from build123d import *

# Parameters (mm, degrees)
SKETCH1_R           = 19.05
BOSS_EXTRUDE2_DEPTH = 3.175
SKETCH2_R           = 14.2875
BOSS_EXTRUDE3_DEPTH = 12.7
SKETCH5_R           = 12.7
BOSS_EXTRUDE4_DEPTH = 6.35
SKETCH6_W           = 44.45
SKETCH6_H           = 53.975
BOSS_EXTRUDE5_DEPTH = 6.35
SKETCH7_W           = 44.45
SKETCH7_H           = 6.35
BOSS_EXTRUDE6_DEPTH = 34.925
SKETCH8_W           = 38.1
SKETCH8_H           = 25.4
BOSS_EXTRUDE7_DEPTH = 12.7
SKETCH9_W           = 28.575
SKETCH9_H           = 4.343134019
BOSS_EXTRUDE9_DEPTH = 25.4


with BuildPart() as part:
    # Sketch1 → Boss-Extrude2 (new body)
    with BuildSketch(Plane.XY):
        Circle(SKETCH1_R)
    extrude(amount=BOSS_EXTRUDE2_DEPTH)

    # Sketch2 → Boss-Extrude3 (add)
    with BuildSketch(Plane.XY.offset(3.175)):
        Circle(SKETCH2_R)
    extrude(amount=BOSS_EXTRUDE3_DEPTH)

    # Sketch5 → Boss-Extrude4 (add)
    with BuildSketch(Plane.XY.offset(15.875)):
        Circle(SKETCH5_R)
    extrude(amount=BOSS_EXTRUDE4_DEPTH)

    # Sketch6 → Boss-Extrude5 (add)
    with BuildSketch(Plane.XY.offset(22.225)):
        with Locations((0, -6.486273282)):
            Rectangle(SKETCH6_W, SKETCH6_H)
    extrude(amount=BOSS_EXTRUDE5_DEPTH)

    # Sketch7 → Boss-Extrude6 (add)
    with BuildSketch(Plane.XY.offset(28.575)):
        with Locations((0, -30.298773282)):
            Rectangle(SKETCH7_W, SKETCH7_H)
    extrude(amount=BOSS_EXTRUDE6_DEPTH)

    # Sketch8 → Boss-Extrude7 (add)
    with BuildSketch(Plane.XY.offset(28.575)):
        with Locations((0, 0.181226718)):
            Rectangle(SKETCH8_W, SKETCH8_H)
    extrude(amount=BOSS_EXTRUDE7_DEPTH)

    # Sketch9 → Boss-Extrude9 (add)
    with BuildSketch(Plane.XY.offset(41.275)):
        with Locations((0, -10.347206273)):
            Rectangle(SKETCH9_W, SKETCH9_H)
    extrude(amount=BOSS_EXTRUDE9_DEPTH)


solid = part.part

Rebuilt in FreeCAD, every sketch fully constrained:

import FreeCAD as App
import Part
import Sketcher
from FreeCAD import Vector
Q = App.Units.Quantity

doc = App.newDocument("Part")
params = doc.addObject("Spreadsheet::Sheet", "Params")
for row, (alias, value) in enumerate([
    ("sketch1_diameter", "1.5 in"),
    ("pad1_length", "0.125 in"),
    ("sketch2_diameter", "1.125 in"),
    ("pad2_length", "0.5 in"),
    ("sketch3_diameter", "1 in"),
    ("pad3_length", "0.25 in"),
    ("sketch4_width", "1.75 in"),
    ("sketch4_height", "2.125 in"),
    ("pad4_length", "0.25 in"),
    ("sketch5_width", "1.75 in"),
    ("sketch5_height", "0.25 in"),
    ("pad5_length", "1.375 in"),
    ("sketch6_height", "1 in"),
    ("sketch6_width", "1.5 in"),
    ("pad6_length", "0.5 in"),
    ("sketch7_width", "1.125 in"),
    ("pad7_length", "1 in"),
], start=1):
    params.set(f"A{row}", alias)
    params.set(f"B{row}", "=" + value)
    params.setAlias(f"B{row}", alias)

body = doc.addObject("PartDesign::Body", "Body")

sketch1 = body.newObject("Sketcher::SketchObject", "Sketch")
sketch1.AttachmentSupport = (doc.getObject("XY_Plane"), [""])
sketch1.MapMode = "FlatFace"
sketch1.addGeometry(Part.Circle(Vector(0, 0, 0), Vector(0, 0, 1), 19), False)
sketch1.addConstraint([
    Sketcher.Constraint("Coincident", 0, 3, -1, 1),
    Sketcher.Constraint("Diameter", 0, Q("1.5 in")),
])
sketch1.setExpression("Constraints[1]", "Params.sketch1_diameter")
pad1 = body.newObject("PartDesign::Pad", "Pad")
pad1.Profile = sketch1
pad1.setExpression("Length", "Params.pad1_length")

sketch2 = body.newObject("Sketcher::SketchObject", "Sketch001")
sketch2.AttachmentSupport = (doc.getObject("XY_Plane"), [""])
sketch2.MapMode = "FlatFace"
sketch2.AttachmentOffset = App.Placement(Vector(0, 0, 0.125 * 25.4), App.Rotation())
sketch2.addGeometry(Part.Circle(Vector(0, 0, 0), Vector(0, 0, 1), 14), False)
sketch2.addConstraint([
    Sketcher.Constraint("Coincident", 0, 3, -1, 1),
    Sketcher.Constraint("Diameter", 0, Q("1.125 in")),
])
sketch2.setExpression("Constraints[1]", "Params.sketch2_diameter")
pad2 = body.newObject("PartDesign::Pad", "Pad001")
pad2.Profile = sketch2
pad2.setExpression("Length", "Params.pad2_length")

sketch3 = body.newObject("Sketcher::SketchObject", "Sketch002")
sketch3.AttachmentSupport = (doc.getObject("XY_Plane"), [""])
sketch3.MapMode = "FlatFace"
sketch3.AttachmentOffset = App.Placement(Vector(0, 0, 0.625 * 25.4), App.Rotation())
sketch3.addGeometry(Part.Circle(Vector(0, 0, 0), Vector(0, 0, 1), 13), False)
sketch3.addConstraint([
    Sketcher.Constraint("Coincident", 0, 3, -1, 1),
    Sketcher.Constraint("Diameter", 0, Q("1 in")),
])
sketch3.setExpression("Constraints[1]", "Params.sketch3_diameter")
pad3 = body.newObject("PartDesign::Pad", "Pad002")
pad3.Profile = sketch3
pad3.setExpression("Length", "Params.pad3_length")

sketch4 = body.newObject("Sketcher::SketchObject", "Sketch003")
sketch4.AttachmentSupport = (doc.getObject("XY_Plane"), [""])
sketch4.MapMode = "FlatFace"
sketch4.AttachmentOffset = App.Placement(Vector(0, 0, 0.875 * 25.4), App.Rotation())
sketch4.addGeometry([
    Part.LineSegment(Vector(-22, 21, 0), Vector(-22, -33, 0)),
    Part.LineSegment(Vector(-22, -33, 0), Vector(22, -33, 0)),
    Part.LineSegment(Vector(22, -33, 0), Vector(22, 21, 0)),
    Part.LineSegment(Vector(22, 21, 0), Vector(-22, 21, 0)),
], False)
sketch4.addConstraint([
    Sketcher.Constraint("Coincident", 0, 2, 1, 1),
    Sketcher.Constraint("Coincident", 1, 2, 2, 1),
    Sketcher.Constraint("Coincident", 2, 2, 3, 1),
    Sketcher.Constraint("Coincident", 3, 2, 0, 1),
    Sketcher.Constraint("Vertical", 0),
    Sketcher.Constraint("Horizontal", 1),
    Sketcher.Constraint("Vertical", 2),
    Sketcher.Constraint("Horizontal", 3),
    Sketcher.Constraint("DistanceX", 1, 1, 1, 2, Q("1.75 in")),
    Sketcher.Constraint("DistanceY", 0, 2, 0, 1, Q("2.125 in")),
    Sketcher.Constraint("DistanceX", 0, 2, -1, 1, Q("0.875 in")),
    Sketcher.Constraint("DistanceY", 0, 2, -1, 1, 33.473773),
])
sketch4.setExpression("Constraints[8]", "Params.sketch4_width")
sketch4.setExpression("Constraints[9]", "Params.sketch4_height")
pad4 = body.newObject("PartDesign::Pad", "Pad003")
pad4.Profile = sketch4
pad4.setExpression("Length", "Params.pad4_length")

sketch5 = body.newObject("Sketcher::SketchObject", "Sketch004")
sketch5.AttachmentSupport = (doc.getObject("XY_Plane"), [""])
sketch5.MapMode = "FlatFace"
sketch5.AttachmentOffset = App.Placement(Vector(0, 0, 1.125 * 25.4), App.Rotation())
sketch5.addGeometry([
    Part.LineSegment(Vector(-22, -27, 0), Vector(-22, -33, 0)),
    Part.LineSegment(Vector(-22, -33, 0), Vector(22, -33, 0)),
    Part.LineSegment(Vector(22, -33, 0), Vector(22, -27, 0)),
    Part.LineSegment(Vector(22, -27, 0), Vector(-22, -27, 0)),
], False)
sketch5.addConstraint([
    Sketcher.Constraint("Coincident", 0, 2, 1, 1),
    Sketcher.Constraint("Coincident", 1, 2, 2, 1),
    Sketcher.Constraint("Coincident", 2, 2, 3, 1),
    Sketcher.Constraint("Coincident", 3, 2, 0, 1),
    Sketcher.Constraint("Vertical", 0),
    Sketcher.Constraint("Horizontal", 1),
    Sketcher.Constraint("Vertical", 2),
    Sketcher.Constraint("Horizontal", 3),
    Sketcher.Constraint("DistanceX", 1, 1, 1, 2, Q("1.75 in")),
    Sketcher.Constraint("DistanceY", 0, 2, 0, 1, Q("0.25 in")),
    Sketcher.Constraint("DistanceX", 0, 2, -1, 1, Q("0.875 in")),
    Sketcher.Constraint("DistanceY", 0, 2, -1, 1, 33.473773),
])
sketch5.setExpression("Constraints[8]", "Params.sketch5_width")
sketch5.setExpression("Constraints[9]", "Params.sketch5_height")
pad5 = body.newObject("PartDesign::Pad", "Pad004")
pad5.Profile = sketch5
pad5.setExpression("Length", "Params.pad5_length")

sketch6 = body.newObject("Sketcher::SketchObject", "Sketch005")
sketch6.AttachmentSupport = (doc.getObject("XY_Plane"), [""])
sketch6.MapMode = "FlatFace"
sketch6.AttachmentOffset = App.Placement(Vector(0, 0, 1.125 * 25.4), App.Rotation())
sketch6.addGeometry([
    Part.LineSegment(Vector(-19, 13, 0), Vector(-19, -13, 0)),
    Part.LineSegment(Vector(-19, -13, 0), Vector(19, -13, 0)),
    Part.LineSegment(Vector(19, -13, 0), Vector(19, 13, 0)),
    Part.LineSegment(Vector(19, 13, 0), Vector(-19, 13, 0)),
], False)
sketch6.addConstraint([
    Sketcher.Constraint("Coincident", 0, 2, 1, 1),
    Sketcher.Constraint("Coincident", 1, 2, 2, 1),
    Sketcher.Constraint("Coincident", 2, 2, 3, 1),
    Sketcher.Constraint("Coincident", 3, 2, 0, 1),
    Sketcher.Constraint("Vertical", 0),
    Sketcher.Constraint("Horizontal", 1),
    Sketcher.Constraint("Vertical", 2),
    Sketcher.Constraint("Horizontal", 3),
    Sketcher.Constraint("DistanceY", 0, 2, 0, 1, Q("1 in")),
    Sketcher.Constraint("DistanceX", 1, 1, 1, 2, Q("1.5 in")),
    Sketcher.Constraint("DistanceX", 0, 2, -1, 1, Q("0.75 in")),
    Sketcher.Constraint("DistanceY", 0, 2, -1, 1, 12.518773),
])
sketch6.setExpression("Constraints[8]", "Params.sketch6_height")
sketch6.setExpression("Constraints[9]", "Params.sketch6_width")
pad6 = body.newObject("PartDesign::Pad", "Pad005")
pad6.Profile = sketch6
pad6.setExpression("Length", "Params.pad6_length")

sketch7 = body.newObject("Sketcher::SketchObject", "Sketch006")
sketch7.AttachmentSupport = (doc.getObject("XY_Plane"), [""])
sketch7.MapMode = "FlatFace"
sketch7.AttachmentOffset = App.Placement(Vector(0, 0, 1.625 * 25.4), App.Rotation())
sketch7.addGeometry([
    Part.LineSegment(Vector(-14.3, -8.2, 0), Vector(-14.3, -12.5, 0)),
    Part.LineSegment(Vector(-14.3, -12.5, 0), Vector(14.3, -12.5, 0)),
    Part.LineSegment(Vector(14.3, -12.5, 0), Vector(14.3, -8.2, 0)),
    Part.LineSegment(Vector(14.3, -8.2, 0), Vector(-14.3, -8.2, 0)),
], False)
sketch7.addConstraint([
    Sketcher.Constraint("Coincident", 0, 2, 1, 1),
    Sketcher.Constraint("Coincident", 1, 2, 2, 1),
    Sketcher.Constraint("Coincident", 2, 2, 3, 1),
    Sketcher.Constraint("Coincident", 3, 2, 0, 1),
    Sketcher.Constraint("Vertical", 0),
    Sketcher.Constraint("Horizontal", 1),
    Sketcher.Constraint("Vertical", 2),
    Sketcher.Constraint("Horizontal", 3),
    Sketcher.Constraint("DistanceX", 1, 1, 1, 2, Q("1.125 in")),
    Sketcher.Constraint("DistanceX", 0, 2, -1, 1, Q("0.5625 in")),
    Sketcher.Constraint("DistanceY", 0, 2, 0, 1, 4.343134),
    Sketcher.Constraint("DistanceY", 2, 2, -1, 1, 8.175639),
])
sketch7.setExpression("Constraints[8]", "Params.sketch7_width")
pad7 = body.newObject("PartDesign::Pad", "Pad006")
pad7.Profile = sketch7
pad7.setExpression("Length", "Params.pad7_length")

doc.recompute()
